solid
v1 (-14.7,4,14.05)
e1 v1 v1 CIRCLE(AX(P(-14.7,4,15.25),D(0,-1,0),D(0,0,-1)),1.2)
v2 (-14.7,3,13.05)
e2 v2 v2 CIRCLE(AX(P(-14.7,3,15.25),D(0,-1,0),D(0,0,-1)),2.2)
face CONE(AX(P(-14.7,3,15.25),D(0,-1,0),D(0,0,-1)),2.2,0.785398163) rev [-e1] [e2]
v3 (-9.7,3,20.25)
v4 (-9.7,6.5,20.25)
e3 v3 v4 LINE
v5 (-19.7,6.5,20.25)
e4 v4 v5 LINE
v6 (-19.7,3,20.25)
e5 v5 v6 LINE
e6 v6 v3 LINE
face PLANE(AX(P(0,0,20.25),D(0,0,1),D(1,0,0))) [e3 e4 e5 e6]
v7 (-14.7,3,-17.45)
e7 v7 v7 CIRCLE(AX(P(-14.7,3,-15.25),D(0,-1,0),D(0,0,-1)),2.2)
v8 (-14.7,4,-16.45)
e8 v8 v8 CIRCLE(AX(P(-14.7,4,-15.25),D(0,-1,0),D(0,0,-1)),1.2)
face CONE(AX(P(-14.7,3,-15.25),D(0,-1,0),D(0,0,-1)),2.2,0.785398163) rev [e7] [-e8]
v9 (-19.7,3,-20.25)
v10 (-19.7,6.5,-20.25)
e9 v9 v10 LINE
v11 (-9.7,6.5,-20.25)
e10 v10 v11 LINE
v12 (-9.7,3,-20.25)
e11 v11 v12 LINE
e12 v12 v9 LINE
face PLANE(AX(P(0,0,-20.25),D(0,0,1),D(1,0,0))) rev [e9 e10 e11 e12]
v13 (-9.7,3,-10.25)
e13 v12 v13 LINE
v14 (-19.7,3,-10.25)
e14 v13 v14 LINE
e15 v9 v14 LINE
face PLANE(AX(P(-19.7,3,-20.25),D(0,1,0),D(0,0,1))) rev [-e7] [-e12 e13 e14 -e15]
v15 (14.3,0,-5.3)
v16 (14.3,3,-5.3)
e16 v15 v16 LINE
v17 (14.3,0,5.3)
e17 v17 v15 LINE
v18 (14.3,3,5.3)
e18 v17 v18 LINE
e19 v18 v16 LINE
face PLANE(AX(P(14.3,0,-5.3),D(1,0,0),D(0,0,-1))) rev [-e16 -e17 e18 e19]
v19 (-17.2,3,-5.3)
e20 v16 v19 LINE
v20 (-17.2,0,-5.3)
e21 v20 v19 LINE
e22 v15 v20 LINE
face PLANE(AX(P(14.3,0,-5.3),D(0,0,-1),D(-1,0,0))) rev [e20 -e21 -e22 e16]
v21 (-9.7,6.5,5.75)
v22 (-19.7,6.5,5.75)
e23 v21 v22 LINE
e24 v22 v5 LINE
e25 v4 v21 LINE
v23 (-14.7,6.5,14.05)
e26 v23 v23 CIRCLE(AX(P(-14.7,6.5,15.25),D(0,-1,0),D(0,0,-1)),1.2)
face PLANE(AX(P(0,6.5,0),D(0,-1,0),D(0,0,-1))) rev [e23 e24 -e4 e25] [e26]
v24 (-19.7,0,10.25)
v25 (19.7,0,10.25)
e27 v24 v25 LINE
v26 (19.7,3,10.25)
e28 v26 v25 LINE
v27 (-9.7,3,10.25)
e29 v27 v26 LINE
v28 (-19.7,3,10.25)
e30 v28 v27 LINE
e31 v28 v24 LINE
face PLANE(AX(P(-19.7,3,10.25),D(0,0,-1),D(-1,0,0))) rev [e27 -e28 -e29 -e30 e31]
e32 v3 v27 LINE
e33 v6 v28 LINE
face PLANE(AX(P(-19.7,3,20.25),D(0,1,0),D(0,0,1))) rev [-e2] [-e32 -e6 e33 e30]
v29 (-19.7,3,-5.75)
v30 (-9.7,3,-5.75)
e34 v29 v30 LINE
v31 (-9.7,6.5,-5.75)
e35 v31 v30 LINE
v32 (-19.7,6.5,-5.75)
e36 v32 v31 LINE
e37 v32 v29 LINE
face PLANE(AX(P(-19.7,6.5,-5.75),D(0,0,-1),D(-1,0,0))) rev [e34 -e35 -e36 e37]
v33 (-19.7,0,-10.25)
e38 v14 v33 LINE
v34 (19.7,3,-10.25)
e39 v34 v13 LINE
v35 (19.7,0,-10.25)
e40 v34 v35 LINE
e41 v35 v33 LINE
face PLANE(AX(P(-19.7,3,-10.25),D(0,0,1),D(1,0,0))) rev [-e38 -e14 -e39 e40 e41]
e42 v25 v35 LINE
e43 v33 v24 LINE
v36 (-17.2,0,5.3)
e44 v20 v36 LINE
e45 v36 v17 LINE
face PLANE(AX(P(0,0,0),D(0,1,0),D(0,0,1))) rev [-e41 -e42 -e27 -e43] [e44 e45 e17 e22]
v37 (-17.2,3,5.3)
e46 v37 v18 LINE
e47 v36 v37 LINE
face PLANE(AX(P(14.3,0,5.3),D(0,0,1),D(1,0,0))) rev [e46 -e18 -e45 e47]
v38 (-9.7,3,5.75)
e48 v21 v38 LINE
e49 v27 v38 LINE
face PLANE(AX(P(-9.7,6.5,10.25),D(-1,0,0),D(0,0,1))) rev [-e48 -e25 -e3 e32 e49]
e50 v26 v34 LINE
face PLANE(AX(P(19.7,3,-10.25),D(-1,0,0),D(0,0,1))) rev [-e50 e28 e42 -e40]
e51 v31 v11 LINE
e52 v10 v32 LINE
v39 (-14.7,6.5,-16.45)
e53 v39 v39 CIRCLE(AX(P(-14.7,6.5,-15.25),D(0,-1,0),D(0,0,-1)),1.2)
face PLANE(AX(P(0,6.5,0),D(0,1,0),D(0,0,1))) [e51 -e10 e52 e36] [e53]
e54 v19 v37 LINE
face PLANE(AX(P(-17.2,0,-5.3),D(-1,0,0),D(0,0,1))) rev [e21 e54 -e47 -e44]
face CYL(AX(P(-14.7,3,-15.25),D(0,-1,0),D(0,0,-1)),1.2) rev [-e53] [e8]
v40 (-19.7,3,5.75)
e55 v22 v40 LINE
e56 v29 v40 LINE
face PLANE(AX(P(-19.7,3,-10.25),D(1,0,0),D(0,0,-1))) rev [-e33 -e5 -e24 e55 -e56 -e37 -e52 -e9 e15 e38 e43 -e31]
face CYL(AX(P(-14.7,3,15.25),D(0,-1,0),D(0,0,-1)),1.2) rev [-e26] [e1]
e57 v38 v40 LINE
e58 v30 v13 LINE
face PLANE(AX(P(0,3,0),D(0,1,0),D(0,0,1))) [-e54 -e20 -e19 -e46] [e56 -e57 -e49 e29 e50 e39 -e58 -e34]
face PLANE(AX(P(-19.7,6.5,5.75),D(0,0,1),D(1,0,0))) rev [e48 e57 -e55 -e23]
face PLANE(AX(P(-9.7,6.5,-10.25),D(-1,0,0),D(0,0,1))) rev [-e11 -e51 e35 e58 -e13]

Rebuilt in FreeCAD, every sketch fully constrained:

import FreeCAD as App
import Part
import Sketcher
Q = App.Units.Quantity

doc = App.newDocument("Part")
params = doc.addObject("Spreadsheet::Sheet", "Params")
for row, (alias, value) in enumerate([
    ("sketch1_width", "39.4 mm"),
    ("sketch1_height", "20.5 mm"),
    ("pad1_length", "3 mm"),
    ("sketch2_width", "28.6 mm"),
    ("sketch2_height", "10.6 mm"),
    ("pocket1_length", "3 mm"),
    ("sketch3_width", "10 mm"),
    ("sketch3_height", "4.5 mm"),
    ("pad2_length", "3.5 mm"),
    ("sketch4_width", "10 mm"),
    ("sketch4_height", "3.5 mm"),
    ("pad3_length", "10 mm"),
    ("sketch5_width", "10 mm"),
    ("sketch5_height", "3.5 mm"),
    ("pad4_length", "10 mm"),
    ("sketch6_diameter", "2.4 mm"),
    ("hole_diameter", "2.4 mm"),
    ("hole_csink_diameter", "4.4 mm"),
    ("sketch7_diameter", "2.4 mm"),
    ("hole2_diameter", "2.4 mm"),
    ("hole2_csink_diameter", "4.4 mm"),
    ("sketch8_width", "2.9 mm"),
    ("sketch8_height", "10.6 mm"),
    ("pocket2_length", "3 mm"),
], start=1):
    params.set(f"A{row}", alias)
    params.set(f"B{row}", "=" + value)
    params.setAlias(f"B{row}", alias)

body = doc.addObject("PartDesign::Body", "Body")

sketch1 = body.newObject("Sketcher::SketchObject", "Sketch")
sketch1.AttachmentSupport = (doc.getObject("XZ_Plane"), [""])
sketch1.MapMode = "FlatFace"
sketch1.addGeometry(Part.LineSegment(App.Vector(-20, -10, 0), App.Vector(-20, 10, 0)), False)
sketch1.addGeometry(Part.LineSegment(App.Vector(-20, 10, 0), App.Vector(20, 10, 0)), False)
sketch1.addGeometry(Part.LineSegment(App.Vector(20, 10, 0), App.Vector(20, -10, 0)), False)
sketch1.addGeometry(Part.LineSegment(App.Vector(20, -10, 0), App.Vector(-20, -10, 0)), False)
sketch1.addConstraint(Sketcher.Constraint("Coincident", 0, 2, 1, 1))
sketch1.addConstraint(Sketcher.Constraint("Coincident", 1, 2, 2, 1))
sketch1.addConstraint(Sketcher.Constraint("Coincident", 2, 2, 3, 1))
sketch1.addConstraint(Sketcher.Constraint("Coincident", 3, 2, 0, 1))
sketch1.addConstraint(Sketcher.Constraint("Vertical", 0))
sketch1.addConstraint(Sketcher.Constraint("Horizontal", 1))
sketch1.addConstraint(Sketcher.Constraint("Vertical", 2))
sketch1.addConstraint(Sketcher.Constraint("Horizontal", 3))
sketch1.addConstraint(Sketcher.Constraint("Symmetric", 0, 2, 2, 2, -1, 1))
sketch1.addConstraint(Sketcher.Constraint("DistanceX", 1, 1, 1, 2, Q("39.4 mm")))
sketch1.addConstraint(Sketcher.Constraint("DistanceY", 0, 1, 0, 2, Q("20.5 mm")))
sketch1.setExpression("Constraints[9]", "Params.sketch1_width")
sketch1.setExpression("Constraints[10]", "Params.sketch1_height")
pad1 = body.newObject("PartDesign::Pad", "Pad")
pad1.Profile = sketch1
pad1.setExpression("Length", "Params.pad1_length")
pad1.Reversed = True

sketch2 = body.newObject("Sketcher::SketchObject", "Sketch001")
sketch2.AttachmentSupport = (doc.getObject("XZ_Plane"), [""])
sketch2.MapMode = "FlatFace"
sketch2.AttachmentOffset = App.Placement(App.Vector(0, 0, -3), App.Rotation())
sketch2.addGeometry(Part.LineSegment(App.Vector(-14, -5, 0), App.Vector(-14, 5, 0)), False)
sketch2.addGeometry(Part.LineSegment(App.Vector(-14, 5, 0), App.Vector(14, 5, 0)), False)
sketch2.addGeometry(Part.LineSegment(App.Vector(14, 5, 0), App.Vector(14, -5, 0)), False)
sketch2.addGeometry(Part.LineSegment(App.Vector(14, -5, 0), App.Vector(-14, -5, 0)), False)
sketch2.addConstraint(Sketcher.Constraint("Coincident", 0, 2, 1, 1))
sketch2.addConstraint(Sketcher.Constraint("Coincident", 1, 2, 2, 1))
sketch2.addConstraint(Sketcher.Constraint("Coincident", 2, 2, 3, 1))
sketch2.addConstraint(Sketcher.Constraint("Coincident", 3, 2, 0, 1))
sketch2.addConstraint(Sketcher.Constraint("Vertical", 0))
sketch2.addConstraint(Sketcher.Constraint("Horizontal", 1))
sketch2.addConstraint(Sketcher.Constraint("Vertical", 2))
sketch2.addConstraint(Sketcher.Constraint("Horizontal", 3))
sketch2.addConstraint(Sketcher.Constraint("Symmetric", 0, 2, 2, 2, -1, 1))
sketch2.addConstraint(Sketcher.Constraint("DistanceX", 1, 1, 1, 2, Q("28.6 mm")))
sketch2.addConstraint(Sketcher.Constraint("DistanceY", 0, 1, 0, 2, Q("10.6 mm")))
sketch2.setExpression("Constraints[9]", "Params.sketch2_width")
sketch2.setExpression("Constraints[10]", "Params.sketch2_height")
pocket1 = body.newObject("PartDesign::Pocket", "Pocket")
pocket1.Profile = sketch2
pocket1.setExpression("Length", "Params.pocket1_length")
pocket1.Reversed = True

sketch3 = body.newObject("Sketcher::SketchObject", "Sketch002")
sketch3.AttachmentSupport = (doc.getObject("XZ_Plane"), [""])
sketch3.MapMode = "FlatFace"
sketch3.AttachmentOffset = App.Placement(App.Vector(0, 0, -3), App.Rotation())
sketch3.addGeometry(Part.LineSegment(App.Vector(-19.7, -10.2, 0), App.Vector(-19.7, -5.8, 0)), False)
sketch3.addGeometry(Part.LineSegment(App.Vector(-19.7, -5.8, 0), App.Vector(-9.7, -5.8, 0)), False)
sketch3.addGeometry(Part.LineSegment(App.Vector(-9.7, -5.8, 0), App.Vector(-9.7, -10.2, 0)), False)
sketch3.addGeometry(Part.LineSegment(App.Vector(-9.7, -10.2, 0), App.Vector(-19.7, -10.2, 0)), False)
sketch3.addGeometry(Part.LineSegment(App.Vector(-19.7, 5.8, 0), App.Vector(-19.7, 10.2, 0)), False)
sketch3.addGeometry(Part.LineSegment(App.Vector(-19.7, 10.2, 0), App.Vector(-9.7, 10.2, 0)), False)
sketch3.addGeometry(Part.LineSegment(App.Vector(-9.7, 10.2, 0), App.Vector(-9.7, 5.8, 0)), False)
sketch3.addGeometry(Part.LineSegment(App.Vector(-9.7, 5.8, 0), App.Vector(-19.7, 5.8, 0)), False)
sketch3.addConstraint(Sketcher.Constraint("Coincident", 0, 2, 1, 1))
sketch3.addConstraint(Sketcher.Constraint("Coincident", 1, 2, 2, 1))
sketch3.addConstraint(Sketcher.Constraint("Coincident", 2, 2, 3, 1))
sketch3.addConstraint(Sketcher.Constraint("Coincident", 3, 2, 0, 1))
sketch3.addConstraint(Sketcher.Constraint("Coincident", 4, 2, 5, 1))
sketch3.addConstraint(Sketcher.Constraint("Coincident", 5, 2, 6, 1))
sketch3.addConstraint(Sketcher.Constraint("Coincident", 6, 2, 7, 1))
sketch3.addConstraint(Sketcher.Constraint("Coincident", 7, 2, 4, 1))
sketch3.addConstraint(Sketcher.Constraint("Vertical", 0))
sketch3.addConstraint(Sketcher.Constraint("Horizontal", 1))
sketch3.addConstraint(Sketcher.Constraint("Vertical", 2))
sketch3.addConstraint(Sketcher.Constraint("Horizontal", 3))
sketch3.addConstraint(Sketcher.Constraint("Vertical", 4))
sketch3.addConstraint(Sketcher.Constraint("Horizontal", 5))
sketch3.addConstraint(Sketcher.Constraint("Vertical", 6))
sketch3.addConstraint(Sketcher.Constraint("Horizontal", 7))
sketch3.addConstraint(Sketcher.Constraint("Symmetric", 3, 2, 4, 2, -1))
sketch3.addConstraint(Sketcher.Constraint("Symmetric", 1, 2, 6, 2, -1))
sketch3.addConstraint(Sketcher.Constraint("DistanceX", 1, 1, 1, 2, Q("10 mm")))
sketch3.addConstraint(Sketcher.Constraint("DistanceY", 0, 1, 0, 2, Q("4.5 mm")))
sketch3.addConstraint(Sketcher.Constraint("DistanceY", 0, 2, 4, 2, Q("16 mm")))
sketch3.addConstraint(Sketcher.Constraint("DistanceX", 0, 2, -1, 1, Q("19.7 mm")))
sketch3.setExpression("Constraints[18]", "Params.sketch3_width")
sketch3.setExpression("Constraints[19]", "Params.sketch3_height")
pad2 = body.newObject("PartDesign::Pad", "Pad001")
pad2.Profile = sketch3
pad2.setExpression("Length", "Params.pad2_length")
pad2.Reversed = True

sketch4 = body.newObject("Sketcher::SketchObject", "Sketch003")
sketch4.AttachmentSupport = (doc.getObject("XY_Plane"), [""])
sketch4.MapMode = "FlatFace"
sketch4.AttachmentOffset = App.Placement(App.Vector(0, 0, 10.25), App.Rotation())
sketch4.addGeometry(Part.LineSegment(App.Vector(-19.7, 6.5, 0), App.Vector(-19.7, 3, 0)), False)
sketch4.addGeometry(Part.LineSegment(App.Vector(-19.7, 3, 0), App.Vector(-9.7, 3, 0)), False)
sketch4.addGeometry(Part.LineSegment(App.Vector(-9.7, 3, 0), App.Vector(-9.7, 6.5, 0)), False)
sketch4.addGeometry(Part.LineSegment(App.Vector(-9.7, 6.5, 0), App.Vector(-19.7, 6.5, 0)), False)
sketch4.addConstraint(Sketcher.Constraint("Coincident", 0, 2, 1, 1))
sketch4.addConstraint(Sketcher.Constraint("Coincident", 1, 2, 2, 1))
sketch4.addConstraint(Sketcher.Constraint("Coincident", 2, 2, 3, 1))
sketch4.addConstraint(Sketcher.Constraint("Coincident", 3, 2, 0, 1))
sketch4.addConstraint(Sketcher.Constraint("Vertical", 0))
sketch4.addConstraint(Sketcher.Constraint("Horizontal", 1))
sketch4.addConstraint(Sketcher.Constraint("Vertical", 2))
sketch4.addConstraint(Sketcher.Constraint("Horizontal", 3))
sketch4.addConstraint(Sketcher.Constraint("DistanceX", 1, 1, 1, 2, Q("10 mm")))
sketch4.addConstraint(Sketcher.Constraint("DistanceY", 0, 2, 0, 1, Q("3.5 mm")))
sketch4.addConstraint(Sketcher.Constraint("DistanceY", -1, 1, 0, 2, Q("3 mm")))
sketch4.addConstraint(Sketcher.Constraint("DistanceX", 0, 2, -1, 1, Q("19.7 mm")))
sketch4.setExpression("Constraints[8]", "Params.sketch4_width")
sketch4.setExpression("Constraints[9]", "Params.sketch4_height")
pad3 = body.newObject("PartDesign::Pad", "Pad002")
pad3.Profile = sketch4
pad3.setExpression("Length", "Params.pad3_length")

sketch5 = body.newObject("Sketcher::SketchObject", "Sketch004")
sketch5.AttachmentSupport = (doc.getObject("XY_Plane"), [""])
sketch5.MapMode = "FlatFace"
sketch5.AttachmentOffset = App.Placement(App.Vector(0, 0, -10.25), App.Rotation())
sketch5.addGeometry(Part.LineSegment(App.Vector(-9.7, 6.5, 0), App.Vector(-9.7, 3, 0)), False)
sketch5.addGeometry(Part.LineSegment(App.Vector(-9.7, 3, 0), App.Vector(-19.7, 3, 0)), False)
sketch5.addGeometry(Part.LineSegment(App.Vector(-19.7, 3, 0), App.Vector(-19.7, 6.5, 0)), False)
sketch5.addGeometry(Part.LineSegment(App.Vector(-19.7, 6.5, 0), App.Vector(-9.7, 6.5, 0)), False)
sketch5.addConstraint(Sketcher.Constraint("Coincident", 0, 2, 1, 1))
sketch5.addConstraint(Sketcher.Constraint("Coincident", 1, 2, 2, 1))
sketch5.addConstraint(Sketcher.Constraint("Coincident", 2, 2, 3, 1))
sketch5.addConstraint(Sketcher.Constraint("Coincident", 3, 2, 0, 1))
sketch5.addConstraint(Sketcher.Constraint("Vertical", 0))
sketch5.addConstraint(Sketcher.Constraint("Horizontal", 1))
sketch5.addConstraint(Sketcher.Constraint("Vertical", 2))
sketch5.addConstraint(Sketcher.Constraint("Horizontal", 3))
sketch5.addConstraint(Sketcher.Constraint("DistanceX", 1, 2, 1, 1, Q("10 mm")))
sketch5.addConstraint(Sketcher.Constraint("DistanceY", 0, 2, 0, 1, Q("3.5 mm")))
sketch5.addConstraint(Sketcher.Constraint("DistanceY", -1, 1, 0, 2, Q("3 mm")))
sketch5.addConstraint(Sketcher.Constraint("DistanceX", 0, 2, -1, 1, Q("9.7 mm")))
sketch5.setExpression("Constraints[8]", "Params.sketch5_width")
sketch5.setExpression("Constraints[9]", "Params.sketch5_height")
pad4 = body.newObject("PartDesign::Pad", "Pad003")
pad4.Profile = sketch5
pad4.setExpression("Length", "Params.pad4_length")
pad4.Reversed = True

sketch6 = body.newObject("Sketcher::SketchObject", "Sketch005")
sketch6.AttachmentSupport = (doc.getObject("XZ_Plane"), [""])
sketch6.MapMode = "FlatFace"
sketch6.AttachmentOffset = App.Placement(App.Vector(0, 0, -3), App.Rotation())
sketch6.addGeometry(Part.Circle(App.Vector(-14.7, -15.2, 0), App.Vector(0, 0, 1), 1.2), False)
sketch6.addConstraint(Sketcher.Constraint("Diameter", 0, Q("2.4 mm")))
sketch6.addConstraint(Sketcher.Constraint("DistanceX", 0, 3, -1, 1, Q("14.7 mm")))
sketch6.addConstraint(Sketcher.Constraint("DistanceY", 0, 3, -1, 1, Q("15.25 mm")))
sketch6.setExpression("Constraints[0]", "Params.sketch6_diameter")
doc.recompute()
hole = body.newObject("PartDesign::Hole", "Hole")
hole.Profile = sketch6
hole.ThreadType = "None"
hole.setExpression("Diameter", "Params.hole_diameter")
hole.DepthType = "ThroughAll"
hole.HoleCutType = "Countersink"
hole.setExpression("HoleCutDiameter", "Params.hole_csink_diameter")
hole.HoleCutCountersinkAngle = 90

sketch7 = body.newObject("Sketcher::SketchObject", "Sketch006")
sketch7.AttachmentSupport = (doc.getObject("XZ_Plane"), [""])
sketch7.MapMode = "FlatFace"
sketch7.AttachmentOffset = App.Placement(App.Vector(0, 0, -3), App.Rotation())
sketch7.addGeometry(Part.Circle(App.Vector(-14.7, 15.2, 0), App.Vector(0, 0, 1), 1.2), False)
sketch7.addConstraint(Sketcher.Constraint("Diameter", 0, Q("2.4 mm")))
sketch7.addConstraint(Sketcher.Constraint("DistanceX", 0, 3, -1, 1, Q("14.7 mm")))
sketch7.addConstraint(Sketcher.Constraint("DistanceY", -1, 1, 0, 3, Q("15.25 mm")))
sketch7.setExpression("Constraints[0]", "Params.sketch7_diameter")
doc.recompute()
hole2 = body.newObject("PartDesign::Hole", "Hole001")
hole2.Profile = sketch7
hole2.ThreadType = "None"
hole2.setExpression("Diameter", "Params.hole2_diameter")
hole2.DepthType = "ThroughAll"
hole2.HoleCutType = "Countersink"
hole2.setExpression("HoleCutDiameter", "Params.hole2_csink_diameter")
hole2.HoleCutCountersinkAngle = 90

sketch8 = body.newObject("Sketcher::SketchObject", "Sketch007")
sketch8.AttachmentSupport = (doc.getObject("XZ_Plane"), [""])
sketch8.MapMode = "FlatFace"
sketch8.AttachmentOffset = App.Placement(App.Vector(0, 0, -3), App.Rotation())
sketch8.addGeometry(Part.LineSegment(App.Vector(-17.2, -5.3, 0), App.Vector(-17.2, 5.3, 0)), False)
sketch8.addGeometry(Part.LineSegment(App.Vector(-17.2, 5.3, 0), App.Vector(-14.3, 5.3, 0)), False)
sketch8.addGeometry(Part.LineSegment(App.Vector(-14.3, 5.3, 0), App.Vector(-14.3, -5.3, 0)), False)
sketch8.addGeometry(Part.LineSegment(App.Vector(-14.3, -5.3, 0), App.Vector(-17.2, -5.3, 0)), False)
sketch8.addConstraint(Sketcher.Constraint("Coincident", 0, 2, 1, 1))
sketch8.addConstraint(Sketcher.Constraint("Coincident", 1, 2, 2, 1))
sketch8.addConstraint(Sketcher.Constraint("Coincident", 2, 2, 3, 1))
sketch8.addConstraint(Sketcher.Constraint("Coincident", 3, 2, 0, 1))
sketch8.addConstraint(Sketcher.Constraint("Vertical", 0))
sketch8.addConstraint(Sketcher.Constraint("Horizontal", 1))
sketch8.addConstraint(Sketcher.Constraint("Vertical", 2))
sketch8.addConstraint(Sketcher.Constraint("Horizontal", 3))
sketch8.addConstraint(Sketcher.Constraint("DistanceX", 1, 1, 1, 2, Q("2.9 mm")))
sketch8.addConstraint(Sketcher.Constraint("DistanceY", 0, 1, 0, 2, Q("10.6 mm")))
sketch8.addConstraint(Sketcher.Constraint("DistanceX", 0, 2, -1, 1, Q("17.2 mm")))
sketch8.addConstraint(Sketcher.Constraint("DistanceY", -1, 1, 0, 2, Q("5.3 mm")))
sketch8.setExpression("Constraints[8]", "Params.sketch8_width")
sketch8.setExpression("Constraints[9]", "Params.sketch8_height")
pocket2 = body.newObject("PartDesign::Pocket", "Pocket001")
pocket2.Profile = sketch8
pocket2.setExpression("Length", "Params.pocket2_length")
pocket2.Reversed = True

doc.recompute()
